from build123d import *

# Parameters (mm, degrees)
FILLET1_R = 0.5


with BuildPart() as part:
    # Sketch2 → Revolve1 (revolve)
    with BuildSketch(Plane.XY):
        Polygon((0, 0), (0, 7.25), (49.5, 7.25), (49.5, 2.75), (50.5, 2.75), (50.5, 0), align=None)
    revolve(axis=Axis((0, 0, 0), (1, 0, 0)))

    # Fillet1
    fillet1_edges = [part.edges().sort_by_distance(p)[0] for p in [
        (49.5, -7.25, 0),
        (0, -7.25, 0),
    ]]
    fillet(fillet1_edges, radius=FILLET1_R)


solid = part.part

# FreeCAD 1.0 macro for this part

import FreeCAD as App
import Part
import Sketcher
from FreeCAD import Vector


def edges_at(feature, points):
    """Names of the edges that pass closest to the given points."""
    edges = feature.Shape.Edges
    near = lambda p: min(range(len(edges)), key=lambda i: edges[i].distToShape(Part.Vertex(*p))[0])
    return sorted({f"Edge{near(p) + 1}" for p in points})

doc = App.newDocument("Part")
body = doc.addObject("PartDesign::Body", "Body")

# Sketch on XY plane
sketch1 = body.newObject("Sketcher::SketchObject", "Sketch")
sketch1.AttachmentSupport = (doc.getObject("XY_Plane"), [""])
sketch1.MapMode = "FlatFace"
sketch1.addGeometry([
    Part.LineSegment(Vector(0, 7.2, 0), Vector(0, 0, 0)),  # 0
    Part.LineSegment(Vector(0, 0, 0), Vector(50.5, 0, 0)),  # 1
    Part.LineSegment(Vector(50.5, 0, 0), Vector(50.5, 2.8, 0)),  # 2
    Part.LineSegment(Vector(50.5, 2.8, 0), Vector(49.5, 2.8, 0)),  # 3
    Part.LineSegment(Vector(49.5, 2.8, 0), Vector(49.5, 7.2, 0)),  # 4
    Part.LineSegment(Vector(49.5, 7.2, 0), Vector(0, 7.2, 0)),  # 5
], False)
sketch1.addConstraint([
    Sketcher.Constraint("Coincident", 0, 2, 1, 1),
    Sketcher.Constraint("Coincident", 1, 2, 2, 1),
    Sketcher.Constraint("Coincident", 2, 2, 3, 1),
    Sketcher.Constraint("Coincident", 3, 2, 4, 1),
    Sketcher.Constraint("Coincident", 4, 2, 5, 1),
    Sketcher.Constraint("Coincident", 5, 2, 0, 1),
    Sketcher.Constraint("Vertical", 0),
    Sketcher.Constraint("Horizontal", 1),
    Sketcher.Constraint("Vertical", 2),
    Sketcher.Constraint("Horizontal", 3),
    Sketcher.Constraint("Vertical", 4),
    Sketcher.Constraint("Horizontal", 5),
    Sketcher.Constraint("Coincident", 0, 2, -1, 1),
    Sketcher.Constraint("DistanceX", 3, 2, 3, 1, 1.0),
    Sketcher.Constraint("DistanceX", 1, 1, 1, 2, 50.5),
    Sketcher.Constraint("DistanceY", 4, 1, 4, 2, 4.5),
    Sketcher.Constraint("DistanceY", 0, 2, 0, 1, 7.25),
])
revolution = body.newObject("PartDesign::Revolution", "Revolution")
revolution.Profile = sketch1
revolution.ReferenceAxis = (sketch1, ["H_Axis"])
revolution.Angle = 360
doc.recompute()

fillet = body.newObject("PartDesign::Fillet", "Fillet")
fillet.Base = (revolution, edges_at(revolution, [(49.5, -7.25, 0), (0, -7.25, 0)]))
fillet.Radius = 0.5

doc.recompute()
